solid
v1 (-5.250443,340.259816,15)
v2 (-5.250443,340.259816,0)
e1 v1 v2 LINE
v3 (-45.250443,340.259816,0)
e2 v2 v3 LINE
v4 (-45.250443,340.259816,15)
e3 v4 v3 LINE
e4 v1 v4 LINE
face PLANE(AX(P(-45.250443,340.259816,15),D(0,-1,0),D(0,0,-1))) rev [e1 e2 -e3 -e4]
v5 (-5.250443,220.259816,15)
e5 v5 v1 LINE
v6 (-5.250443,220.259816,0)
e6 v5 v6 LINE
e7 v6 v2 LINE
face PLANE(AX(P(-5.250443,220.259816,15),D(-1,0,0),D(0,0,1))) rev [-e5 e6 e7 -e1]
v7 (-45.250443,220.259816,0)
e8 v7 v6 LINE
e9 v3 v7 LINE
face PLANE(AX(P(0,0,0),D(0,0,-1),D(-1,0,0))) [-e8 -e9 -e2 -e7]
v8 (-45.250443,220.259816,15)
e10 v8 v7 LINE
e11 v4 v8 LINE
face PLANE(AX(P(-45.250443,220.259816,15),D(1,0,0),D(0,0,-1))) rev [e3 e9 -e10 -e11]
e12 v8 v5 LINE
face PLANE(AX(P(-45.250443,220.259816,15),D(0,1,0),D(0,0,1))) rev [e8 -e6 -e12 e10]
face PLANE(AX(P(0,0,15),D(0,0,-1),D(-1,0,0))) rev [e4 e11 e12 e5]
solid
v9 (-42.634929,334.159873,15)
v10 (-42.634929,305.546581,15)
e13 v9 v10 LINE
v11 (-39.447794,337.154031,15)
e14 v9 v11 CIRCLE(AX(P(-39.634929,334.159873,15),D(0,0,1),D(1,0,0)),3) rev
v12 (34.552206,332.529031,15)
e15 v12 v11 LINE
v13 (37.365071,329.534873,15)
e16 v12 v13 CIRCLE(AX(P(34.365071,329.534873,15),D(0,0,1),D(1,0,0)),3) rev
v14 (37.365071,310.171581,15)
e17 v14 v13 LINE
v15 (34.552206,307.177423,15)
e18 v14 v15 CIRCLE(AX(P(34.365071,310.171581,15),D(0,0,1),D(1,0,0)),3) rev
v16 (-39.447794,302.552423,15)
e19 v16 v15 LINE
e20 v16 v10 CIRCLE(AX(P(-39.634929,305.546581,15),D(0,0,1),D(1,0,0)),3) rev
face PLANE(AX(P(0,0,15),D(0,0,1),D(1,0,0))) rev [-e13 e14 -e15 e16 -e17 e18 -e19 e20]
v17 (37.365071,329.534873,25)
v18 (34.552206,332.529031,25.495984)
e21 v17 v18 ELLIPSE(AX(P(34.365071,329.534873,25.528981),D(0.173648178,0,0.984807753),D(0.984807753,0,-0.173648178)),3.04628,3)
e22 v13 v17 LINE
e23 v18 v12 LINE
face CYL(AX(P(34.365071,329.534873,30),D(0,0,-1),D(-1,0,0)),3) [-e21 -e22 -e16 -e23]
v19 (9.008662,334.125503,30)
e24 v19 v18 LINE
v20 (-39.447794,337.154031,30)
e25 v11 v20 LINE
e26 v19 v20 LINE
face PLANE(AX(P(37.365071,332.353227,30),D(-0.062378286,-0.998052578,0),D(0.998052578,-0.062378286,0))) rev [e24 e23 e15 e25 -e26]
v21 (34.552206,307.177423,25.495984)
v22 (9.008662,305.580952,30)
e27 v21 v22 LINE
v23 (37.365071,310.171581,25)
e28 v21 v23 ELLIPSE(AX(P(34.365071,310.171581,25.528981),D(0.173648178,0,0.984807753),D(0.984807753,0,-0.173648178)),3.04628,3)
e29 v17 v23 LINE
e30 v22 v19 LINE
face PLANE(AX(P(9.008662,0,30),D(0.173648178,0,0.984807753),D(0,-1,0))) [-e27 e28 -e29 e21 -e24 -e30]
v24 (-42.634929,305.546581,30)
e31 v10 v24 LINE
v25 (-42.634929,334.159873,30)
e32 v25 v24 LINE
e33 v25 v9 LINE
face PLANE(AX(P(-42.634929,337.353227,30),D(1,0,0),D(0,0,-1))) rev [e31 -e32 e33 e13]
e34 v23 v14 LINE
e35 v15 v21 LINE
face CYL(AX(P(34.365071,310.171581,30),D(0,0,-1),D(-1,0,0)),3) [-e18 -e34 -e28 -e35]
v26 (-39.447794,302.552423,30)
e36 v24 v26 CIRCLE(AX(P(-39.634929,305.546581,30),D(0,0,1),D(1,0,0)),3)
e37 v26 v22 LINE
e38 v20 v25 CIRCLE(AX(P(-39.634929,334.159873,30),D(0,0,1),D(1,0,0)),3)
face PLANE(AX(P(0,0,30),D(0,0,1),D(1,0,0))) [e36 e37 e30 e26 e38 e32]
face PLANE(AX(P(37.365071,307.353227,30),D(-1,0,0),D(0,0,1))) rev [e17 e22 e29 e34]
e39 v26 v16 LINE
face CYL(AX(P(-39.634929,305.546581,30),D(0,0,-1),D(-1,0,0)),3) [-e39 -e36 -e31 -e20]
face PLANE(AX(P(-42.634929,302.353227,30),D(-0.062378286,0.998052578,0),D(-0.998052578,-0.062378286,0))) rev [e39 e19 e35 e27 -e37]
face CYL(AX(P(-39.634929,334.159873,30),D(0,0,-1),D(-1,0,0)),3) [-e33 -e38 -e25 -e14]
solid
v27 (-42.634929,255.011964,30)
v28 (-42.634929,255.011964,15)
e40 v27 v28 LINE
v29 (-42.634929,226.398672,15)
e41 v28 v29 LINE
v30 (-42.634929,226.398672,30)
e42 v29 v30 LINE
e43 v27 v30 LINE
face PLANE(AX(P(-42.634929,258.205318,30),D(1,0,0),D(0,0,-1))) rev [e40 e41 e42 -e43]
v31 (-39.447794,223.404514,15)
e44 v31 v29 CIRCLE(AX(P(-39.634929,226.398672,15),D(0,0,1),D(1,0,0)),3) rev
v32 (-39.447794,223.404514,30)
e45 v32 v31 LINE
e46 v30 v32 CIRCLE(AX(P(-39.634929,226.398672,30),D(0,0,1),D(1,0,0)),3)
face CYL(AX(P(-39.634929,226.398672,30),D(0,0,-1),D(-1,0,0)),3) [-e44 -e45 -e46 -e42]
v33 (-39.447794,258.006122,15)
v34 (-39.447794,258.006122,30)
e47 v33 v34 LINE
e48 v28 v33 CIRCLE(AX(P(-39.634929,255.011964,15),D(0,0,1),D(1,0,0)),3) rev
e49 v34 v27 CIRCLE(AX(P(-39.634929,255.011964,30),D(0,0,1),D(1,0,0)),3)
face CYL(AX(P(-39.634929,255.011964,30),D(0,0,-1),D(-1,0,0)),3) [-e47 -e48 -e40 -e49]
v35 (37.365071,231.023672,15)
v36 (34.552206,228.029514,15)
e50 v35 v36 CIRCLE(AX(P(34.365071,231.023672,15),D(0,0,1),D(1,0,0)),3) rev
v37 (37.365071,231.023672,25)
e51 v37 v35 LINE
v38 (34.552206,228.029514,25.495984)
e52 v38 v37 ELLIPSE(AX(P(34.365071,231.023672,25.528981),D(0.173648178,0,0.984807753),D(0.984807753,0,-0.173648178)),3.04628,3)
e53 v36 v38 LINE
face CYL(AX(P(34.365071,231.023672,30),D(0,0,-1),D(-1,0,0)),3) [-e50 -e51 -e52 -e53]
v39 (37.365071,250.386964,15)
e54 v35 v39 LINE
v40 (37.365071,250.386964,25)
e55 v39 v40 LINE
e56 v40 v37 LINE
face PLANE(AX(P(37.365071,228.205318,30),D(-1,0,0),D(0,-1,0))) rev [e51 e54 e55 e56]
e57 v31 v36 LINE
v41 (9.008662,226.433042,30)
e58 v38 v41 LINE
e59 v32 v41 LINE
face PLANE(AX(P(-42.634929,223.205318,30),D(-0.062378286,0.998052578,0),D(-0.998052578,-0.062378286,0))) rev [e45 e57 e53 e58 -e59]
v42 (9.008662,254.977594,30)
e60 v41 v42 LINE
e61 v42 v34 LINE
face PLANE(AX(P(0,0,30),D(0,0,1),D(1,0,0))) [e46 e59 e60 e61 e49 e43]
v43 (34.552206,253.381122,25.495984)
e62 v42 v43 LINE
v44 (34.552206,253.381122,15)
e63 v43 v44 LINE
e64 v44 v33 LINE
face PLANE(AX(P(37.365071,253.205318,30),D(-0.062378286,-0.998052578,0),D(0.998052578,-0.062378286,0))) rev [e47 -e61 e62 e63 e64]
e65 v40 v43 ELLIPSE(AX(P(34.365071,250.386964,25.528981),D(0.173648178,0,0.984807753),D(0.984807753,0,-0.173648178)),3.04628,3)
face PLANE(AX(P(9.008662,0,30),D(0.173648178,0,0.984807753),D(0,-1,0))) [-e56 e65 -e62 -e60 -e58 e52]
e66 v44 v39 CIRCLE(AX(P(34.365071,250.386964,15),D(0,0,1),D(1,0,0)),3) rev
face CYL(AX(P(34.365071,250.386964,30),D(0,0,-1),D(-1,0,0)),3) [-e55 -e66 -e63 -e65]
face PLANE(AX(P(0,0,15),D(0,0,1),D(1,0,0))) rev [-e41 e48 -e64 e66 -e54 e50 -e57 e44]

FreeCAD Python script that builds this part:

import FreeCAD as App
import Part
import Sketcher

V = App.Vector
Q = App.Units.Quantity


def edges_at(feature, points):
    """Names of the edges that pass closest to the given points."""
    edges = feature.Shape.Edges
    near = lambda p: min(range(len(edges)), key=lambda i: edges[i].distToShape(Part.Vertex(*p))[0])
    return sorted({f"Edge{near(p) + 1}" for p in points})

doc = App.newDocument("Part")
body = doc.addObject("PartDesign::Body", "Body")

# Sketch on XY plane
sketch1 = body.newObject("Sketcher::SketchObject", "Sketch")
sketch1.AttachmentSupport = (doc.getObject("XY_Plane"), [""])
sketch1.MapMode = "FlatFace"
sketch1.addGeometry([
    Part.LineSegment(V(-45, 340, 0), V(-45, 220, 0)),
    Part.LineSegment(V(-45, 220, 0), V(-5, 220, 0)),
    Part.LineSegment(V(-5, 220, 0), V(-5, 340, 0)),
    Part.LineSegment(V(-5, 340, 0), V(-45, 340, 0)),
], False)
sketch1.addConstraint([
    Sketcher.Constraint("Coincident", 0, 2, 1, 1),
    Sketcher.Constraint("Coincident", 1, 2, 2, 1),
    Sketcher.Constraint("Coincident", 2, 2, 3, 1),
    Sketcher.Constraint("Coincident", 3, 2, 0, 1),
    Sketcher.Constraint("Vertical", 0),
    Sketcher.Constraint("Horizontal", 1),
    Sketcher.Constraint("Vertical", 2),
    Sketcher.Constraint("Horizontal", 3),
    Sketcher.Constraint("DistanceX", 1, 1, 1, 2, Q("40 mm")),
    Sketcher.Constraint("DistanceY", 0, 2, 0, 1, Q("120 mm")),
    Sketcher.Constraint("DistanceX", 0, 2, -1, 1, Q("45.250443 mm")),
    Sketcher.Constraint("DistanceY", -1, 1, 0, 2, Q("220.259816 mm")),
])
pad1 = body.newObject("PartDesign::Pad", "Pad")
pad1.Profile = sketch1
pad1.Length = 15
body2 = doc.addObject("PartDesign::Body", "Body001")

# Sketch on XY plane
sketch2 = body2.newObject("Sketcher::SketchObject", "Sketch001")
sketch2.AttachmentSupport = (doc.getObject("XY_Plane001"), [""])
sketch2.MapMode = "FlatFace"
sketch2.AttachmentOffset = App.Placement(V(0, 0, 15), App.Rotation())
sketch2.addGeometry([
    Part.LineSegment(V(-43, 258, 0), V(-43, 223, 0)),
    Part.LineSegment(V(-43, 223, 0), V(37, 228, 0)),
    Part.LineSegment(V(37, 228, 0), V(37, 253, 0)),
    Part.LineSegment(V(37, 253, 0), V(-43, 258, 0)),
], False)
sketch2.addConstraint([
    Sketcher.Constraint("Coincident", 0, 2, 1, 1),
    Sketcher.Constraint("Coincident", 1, 2, 2, 1),
    Sketcher.Constraint("Coincident", 2, 2, 3, 1),
    Sketcher.Constraint("Coincident", 3, 2, 0, 1),
    Sketcher.Constraint("Vertical", 0),
    Sketcher.Constraint("Vertical", 2),
    Sketcher.Constraint("Equal", 1, 3),
    Sketcher.Constraint("DistanceY", 0, 2, 0, 1, Q("35 mm")),
    Sketcher.Constraint("DistanceY", 2, 1, 2, 2, Q("25 mm")),
    Sketcher.Constraint("DistanceX", 0, 2, 1, 2, Q("80 mm")),
    Sketcher.Constraint("DistanceX", 0, 2, -1, 1, Q("42.634929 mm")),
    Sketcher.Constraint("DistanceY", -1, 1, 0, 2, Q("223.205318 mm")),
])
pad2 = body2.newObject("PartDesign::Pad", "Pad001")
pad2.Profile = sketch2
pad2.Length = 15
doc.recompute()

chamfer = body2.newObject("PartDesign::Chamfer", "Chamfer")
chamfer.Base = (pad2, edges_at(pad2, [(37.365, 240.705, 30)]))
chamfer.ChamferType = "Two distances"
chamfer.Size = 5
chamfer.Size2 = 28.356409
doc.recompute()

fillet = body2.newObject("PartDesign::Fillet", "Fillet")
fillet.Base = (chamfer, edges_at(chamfer, [
    (37.365, 253.205, 20),
    (37.365, 228.205, 20),
    (-42.635, 223.205, 22.5),
    (-42.635, 258.205, 22.5),
]))
fillet.Radius = 3
body3 = doc.addObject("PartDesign::Body", "Body002")

# Sketch on XY plane
sketch3 = body3.newObject("Sketcher::SketchObject", "Sketch002")
sketch3.AttachmentSupport = (doc.getObject("XY_Plane002"), [""])
sketch3.MapMode = "FlatFace"
sketch3.AttachmentOffset = App.Placement(V(0, 0, 15), App.Rotation())
sketch3.addGeometry([
    Part.LineSegment(V(-43, 337, 0), V(-43, 302, 0)),
    Part.LineSegment(V(-43, 302, 0), V(37, 307, 0)),
    Part.LineSegment(V(37, 307, 0), V(37, 332, 0)),
    Part.LineSegment(V(37, 332, 0), V(-43, 337, 0)),
], False)
sketch3.addConstraint([
    Sketcher.Constraint("Coincident", 0, 2, 1, 1),
    Sketcher.Constraint("Coincident", 1, 2, 2, 1),
    Sketcher.Constraint("Coincident", 2, 2, 3, 1),
    Sketcher.Constraint("Coincident", 3, 2, 0, 1),
    Sketcher.Constraint("Vertical", 0),
    Sketcher.Constraint("Vertical", 2),
    Sketcher.Constraint("Equal", 1, 3),
    Sketcher.Constraint("DistanceY", 0, 2, 0, 1, Q("35 mm")),
    Sketcher.Constraint("DistanceY", 2, 1, 2, 2, Q("25 mm")),
    Sketcher.Constraint("DistanceX", 0, 2, 1, 2, Q("80 mm")),
    Sketcher.Constraint("DistanceX", 0, 2, -1, 1, Q("42.634929 mm")),
    Sketcher.Constraint("DistanceY", -1, 1, 0, 2, Q("302.353227 mm")),
])
pad3 = body3.newObject("PartDesign::Pad", "Pad002")
pad3.Profile = sketch3
pad3.Length = 15
doc.recompute()

chamfer2 = body3.newObject("PartDesign::Chamfer", "Chamfer001")
chamfer2.Base = (pad3, edges_at(pad3, [(37.365, 319.853, 30)]))
chamfer2.ChamferType = "Two distances"
chamfer2.Size = 5
chamfer2.Size2 = 28.356409
doc.recompute()

fillet2 = body3.newObject("PartDesign::Fillet", "Fillet001")
fillet2.Base = (chamfer2, edges_at(chamfer2, [
    (37.365, 332.353, 20),
    (37.365, 307.353, 20),
    (-42.635, 302.353, 22.5),
    (-42.635, 337.353, 22.5),
]))
fillet2.Radius = 3

doc.recompute()
